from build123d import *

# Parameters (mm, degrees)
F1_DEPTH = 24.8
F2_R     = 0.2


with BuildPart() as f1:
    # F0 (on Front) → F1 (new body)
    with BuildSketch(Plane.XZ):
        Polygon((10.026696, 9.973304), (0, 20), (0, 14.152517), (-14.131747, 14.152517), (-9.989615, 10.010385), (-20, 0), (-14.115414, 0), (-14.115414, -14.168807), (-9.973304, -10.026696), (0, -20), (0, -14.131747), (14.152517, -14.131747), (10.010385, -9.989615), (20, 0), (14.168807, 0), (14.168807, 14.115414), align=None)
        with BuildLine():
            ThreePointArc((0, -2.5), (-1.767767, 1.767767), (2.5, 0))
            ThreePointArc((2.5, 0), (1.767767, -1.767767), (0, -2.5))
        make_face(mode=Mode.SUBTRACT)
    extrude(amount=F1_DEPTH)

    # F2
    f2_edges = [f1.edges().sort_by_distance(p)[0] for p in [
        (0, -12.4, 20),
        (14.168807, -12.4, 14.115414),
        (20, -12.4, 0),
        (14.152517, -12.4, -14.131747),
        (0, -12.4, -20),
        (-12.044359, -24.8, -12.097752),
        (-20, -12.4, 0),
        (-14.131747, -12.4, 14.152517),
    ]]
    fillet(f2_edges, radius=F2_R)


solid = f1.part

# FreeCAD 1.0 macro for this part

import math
import FreeCAD as App
import Part
import Sketcher

V = App.Vector
Q = App.Units.Quantity


def edges_at(feature, points):
    """Names of the edges that pass closest to the given points."""
    edges = feature.Shape.Edges
    near = lambda p: min(range(len(edges)), key=lambda i: edges[i].distToShape(Part.Vertex(*p))[0])
    return sorted({f"Edge{near(p) + 1}" for p in points})

doc = App.newDocument("Part")
body = doc.addObject("PartDesign::Body", "Body")

# Sketch on XZ plane
sketch1 = doc.addObject("Sketcher::SketchObject", "Sketch")
body.addObject(sketch1)
sketch1.AttachmentSupport = (doc.XZ_Plane, [""])
sketch1.MapMode = "FlatFace"
sketch1.addGeometry([
    Part.LineSegment(V(10, 10, 0), V(0, 20, 0)),  # 0
    Part.LineSegment(V(0, 20, 0), V(0, 14.2, 0)),  # 1
    Part.LineSegment(V(0, 14.2, 0), V(-14.1, 14.2, 0)),  # 2
    Part.LineSegment(V(-14.1, 14.2, 0), V(-10, 10, 0)),  # 3
    Part.LineSegment(V(-10, 10, 0), V(-20, 0, 0)),  # 4
    Part.LineSegment(V(-20, 0, 0), V(-14.1, 0, 0)),  # 5
    Part.LineSegment(V(-14.1, 0, 0), V(-14.1, -14.2, 0)),  # 6
    Part.LineSegment(V(-14.1, -14.2, 0), V(-10, -10, 0)),  # 7
    Part.LineSegment(V(-10, -10, 0), V(0, -20, 0)),  # 8
    Part.LineSegment(V(0, -20, 0), V(0, -14.1, 0)),  # 9
    Part.LineSegment(V(0, -14.1, 0), V(14.2, -14.1, 0)),  # 10
    Part.LineSegment(V(14.2, -14.1, 0), V(10, -10, 0)),  # 11
    Part.LineSegment(V(10, -10, 0), V(20, 0, 0)),  # 12
    Part.LineSegment(V(20, 0, 0), V(14.2, 0, 0)),  # 13
    Part.LineSegment(V(14.2, 0, 0), V(14.2, 14.1, 0)),  # 14
    Part.LineSegment(V(14.2, 14.1, 0), V(10, 10, 0)),  # 15
    Part.ArcOfCircle(Part.Circle(V(0, 0, 0), V(0, 0, 1), 2.5), math.radians(-90), math.radians(0)),  # 16
    Part.ArcOfCircle(Part.Circle(V(0, 0, 0), V(0, 0, 1), 2.5), math.radians(0), math.radians(270)),  # 17
], False)
sketch1.addConstraint([
    Sketcher.Constraint("Coincident", 0, 2, 1, 1),
    Sketcher.Constraint("Coincident", 1, 2, 2, 1),
    Sketcher.Constraint("Coincident", 2, 2, 3, 1),
    Sketcher.Constraint("Coincident", 3, 2, 4, 1),
    Sketcher.Constraint("Coincident", 4, 2, 5, 1),
    Sketcher.Constraint("Coincident", 5, 2, 6, 1),
    Sketcher.Constraint("Coincident", 6, 2, 7, 1),
    Sketcher.Constraint("Coincident", 7, 2, 8, 1),
    Sketcher.Constraint("Coincident", 8, 2, 9, 1),
    Sketcher.Constraint("Coincident", 9, 2, 10, 1),
    Sketcher.Constraint("Coincident", 10, 2, 11, 1),
    Sketcher.Constraint("Coincident", 11, 2, 12, 1),
    Sketcher.Constraint("Coincident", 12, 2, 13, 1),
    Sketcher.Constraint("Coincident", 13, 2, 14, 1),
    Sketcher.Constraint("Coincident", 14, 2, 15, 1),
    Sketcher.Constraint("Coincident", 15, 2, 0, 1),
    Sketcher.Constraint("Tangent", 16, 1, 17, 2),
    Sketcher.Constraint("Coincident", 17, 1, 16, 2),
    Sketcher.Constraint("Vertical", 1),
    Sketcher.Constraint("Horizontal", 2),
    Sketcher.Constraint("Horizontal", 5),
    Sketcher.Constraint("Vertical", 6),
    Sketcher.Constraint("Vertical", 9),
    Sketcher.Constraint("Horizontal", 10),
    Sketcher.Constraint("Horizontal", 13),
    Sketcher.Constraint("Vertical", 14),
    Sketcher.Constraint("Coincident", 16, 3, -1, 1),
    Sketcher.Constraint("Symmetric", 0, 2, 8, 2, -1, 1),
    Sketcher.Constraint("Symmetric", 4, 2, 12, 2, -1, 1),
    Sketcher.Constraint("PointOnObject", 0, 2, -2),
    Sketcher.Constraint("PointOnObject", 4, 2, -1),
    Sketcher.Constraint("PointOnObject", 16, 1, -2),
    Sketcher.Constraint("PointOnObject", 17, 1, -1),
    Sketcher.Constraint("Parallel", 0, 3),
    Sketcher.Constraint("Perpendicular", 3, 4),
    Sketcher.Constraint("Parallel", 4, 7),
    Sketcher.Constraint("Perpendicular", 7, 8),
    Sketcher.Constraint("Parallel", 8, 11),
    Sketcher.Constraint("Perpendicular", 11, 12),
    Sketcher.Constraint("Parallel", 12, 15),
    Sketcher.Constraint("Equal", 3, 11),
    Sketcher.Constraint("Equal", 7, 15),
    Sketcher.Constraint("Radius", 16, Q("2.5 mm")),
    Sketcher.Constraint("Angle", 0, Q("135 deg")),
    Sketcher.Constraint("DistanceY", -1, 1, 0, 2, Q("20 mm")),
    Sketcher.Constraint("DistanceX", 4, 2, -1, 1, Q("20 mm")),
    Sketcher.Constraint("DistanceX", 5, 2, 3, 2, Q("4.125799 mm")),
    Sketcher.Constraint("Distance", 0, Q("14.179889 mm")),
    Sketcher.Constraint("Distance", 3, Q("5.857859 mm")),
    Sketcher.Constraint("Distance", 7, Q("5.857829 mm")),
    Sketcher.Constraint("Distance", 8, Q("14.104382 mm")),
    Sketcher.Constraint("Distance", 12, Q("14.127449 mm")),
])
pad1 = doc.addObject("PartDesign::Pad", "Pad")
body.addObject(pad1)
pad1.Profile = sketch1
pad1.Length = 24.8
doc.recompute()

fillet = doc.addObject("PartDesign::Fillet", "Fillet")
body.addObject(fillet)
fillet.Base = (pad1, edges_at(pad1, [
    (0, -12.4, 20),
    (14.169, -12.4, 14.115),
    (20, -12.4, 0),
    (14.153, -12.4, -14.132),
    (0, -12.4, -20),
    (-12.044, -24.8, -12.098),
    (-20, -12.4, 0),
    (-14.132, -12.4, 14.153),
]))
fillet.Radius = 0.2

doc.recompute()
